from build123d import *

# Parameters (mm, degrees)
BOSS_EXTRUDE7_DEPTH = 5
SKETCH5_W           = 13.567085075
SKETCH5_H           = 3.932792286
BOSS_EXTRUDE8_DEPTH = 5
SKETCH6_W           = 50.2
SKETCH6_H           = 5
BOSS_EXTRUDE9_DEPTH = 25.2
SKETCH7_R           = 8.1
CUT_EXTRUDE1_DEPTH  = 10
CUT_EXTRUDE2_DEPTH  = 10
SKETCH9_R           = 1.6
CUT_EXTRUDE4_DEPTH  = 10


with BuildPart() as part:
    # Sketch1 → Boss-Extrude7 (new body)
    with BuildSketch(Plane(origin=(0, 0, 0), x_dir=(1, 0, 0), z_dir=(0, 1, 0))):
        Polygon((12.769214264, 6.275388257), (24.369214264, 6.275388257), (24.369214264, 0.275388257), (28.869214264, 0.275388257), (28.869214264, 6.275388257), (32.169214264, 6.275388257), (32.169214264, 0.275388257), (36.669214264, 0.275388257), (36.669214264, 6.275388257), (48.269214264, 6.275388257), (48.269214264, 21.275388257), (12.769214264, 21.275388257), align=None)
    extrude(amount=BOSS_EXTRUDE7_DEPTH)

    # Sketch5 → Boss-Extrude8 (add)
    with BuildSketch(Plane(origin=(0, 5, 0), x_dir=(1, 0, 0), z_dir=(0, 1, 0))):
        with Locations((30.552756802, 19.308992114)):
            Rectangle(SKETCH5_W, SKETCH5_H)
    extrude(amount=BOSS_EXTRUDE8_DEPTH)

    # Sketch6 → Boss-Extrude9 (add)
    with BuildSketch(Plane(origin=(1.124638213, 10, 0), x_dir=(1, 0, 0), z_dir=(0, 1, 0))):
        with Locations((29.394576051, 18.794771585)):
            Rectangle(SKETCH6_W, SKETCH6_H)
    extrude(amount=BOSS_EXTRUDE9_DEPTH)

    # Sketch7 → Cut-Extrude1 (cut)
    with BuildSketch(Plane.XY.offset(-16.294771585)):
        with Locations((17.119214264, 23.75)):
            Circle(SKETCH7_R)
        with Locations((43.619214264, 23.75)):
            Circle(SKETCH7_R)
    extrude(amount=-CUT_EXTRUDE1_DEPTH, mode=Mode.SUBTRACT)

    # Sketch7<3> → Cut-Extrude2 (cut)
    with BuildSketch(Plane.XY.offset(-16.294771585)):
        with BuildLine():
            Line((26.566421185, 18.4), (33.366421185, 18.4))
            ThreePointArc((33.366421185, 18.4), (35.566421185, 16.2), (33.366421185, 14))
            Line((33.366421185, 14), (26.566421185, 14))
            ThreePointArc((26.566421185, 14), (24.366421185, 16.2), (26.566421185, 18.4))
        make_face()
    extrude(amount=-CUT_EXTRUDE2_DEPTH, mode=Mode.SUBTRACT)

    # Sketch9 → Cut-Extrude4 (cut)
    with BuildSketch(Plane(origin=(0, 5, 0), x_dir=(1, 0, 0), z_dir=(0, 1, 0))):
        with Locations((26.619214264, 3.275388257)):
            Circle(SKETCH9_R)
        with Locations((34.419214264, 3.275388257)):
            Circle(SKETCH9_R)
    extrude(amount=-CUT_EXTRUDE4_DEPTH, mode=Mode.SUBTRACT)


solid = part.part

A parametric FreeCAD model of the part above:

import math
import FreeCAD as App
import Part
import Sketcher
from FreeCAD import Vector
Q = App.Units.Quantity

doc = App.newDocument("Part")
params = doc.addObject("Spreadsheet::Sheet", "Params")
for row, (alias, value) in enumerate([
    ("sketch1_height", "6 mm"),
    ("sketch1_height2", "15 mm"),
    ("sketch1_width", "11.6 mm"),
    ("sketch1_width2", "4.5 mm"),
    ("sketch1_width3", "3.3 mm"),
    ("pad1_length", "5 mm"),
    ("pad2_length", "5 mm"),
    ("sketch3_height", "5 mm"),
    ("sketch3_width", "50.2 mm"),
    ("pad3_length", "25.2 mm"),
    ("sketch4_diameter", "16.2 mm"),
    ("pocket1_length", "10 mm"),
    ("sketch5_radius", "2.2 mm"),
    ("sketch5_width", "6.8 mm"),
    ("pocket2_length", "10 mm"),
    ("sketch6_diameter", "3.2 mm"),
    ("pocket3_length", "10 mm"),
], start=1):
    params.set(f"A{row}", alias)
    params.set(f"B{row}", "=" + value)
    params.setAlias(f"B{row}", alias)

body = doc.addObject("PartDesign::Body", "Body")

# Sketch on XZ plane
sketch1 = body.newObject("Sketcher::SketchObject", "Sketch")
sketch1.AttachmentSupport = (doc.getObject("XZ_Plane"), [""])
sketch1.MapMode = "FlatFace"
sketch1.addGeometry([
    Part.LineSegment(Vector(12.8, -6.3, 0), Vector(24.4, -6.3, 0)),  # 0
    Part.LineSegment(Vector(24.4, -6.3, 0), Vector(24.4, -0.3, 0)),  # 1
    Part.LineSegment(Vector(24.4, -0.3, 0), Vector(28.9, -0.3, 0)),  # 2
    Part.LineSegment(Vector(28.9, -0.3, 0), Vector(28.9, -6.3, 0)),  # 3
    Part.LineSegment(Vector(28.9, -6.3, 0), Vector(32.2, -6.3, 0)),  # 4
    Part.LineSegment(Vector(32.2, -6.3, 0), Vector(32.2, -0.3, 0)),  # 5
    Part.LineSegment(Vector(32.2, -0.3, 0), Vector(36.7, -0.3, 0)),  # 6
    Part.LineSegment(Vector(36.7, -0.3, 0), Vector(36.7, -6.3, 0)),  # 7
    Part.LineSegment(Vector(36.7, -6.3, 0), Vector(48.3, -6.3, 0)),  # 8
    Part.LineSegment(Vector(48.3, -6.3, 0), Vector(48.3, -21.3, 0)),  # 9
    Part.LineSegment(Vector(48.3, -21.3, 0), Vector(12.8, -21.3, 0)),  # 10
    Part.LineSegment(Vector(12.8, -21.3, 0), Vector(12.8, -6.3, 0)),  # 11
], False)
sketch1.addConstraint([
    Sketcher.Constraint("Coincident", 0, 2, 1, 1),
    Sketcher.Constraint("Coincident", 1, 2, 2, 1),
    Sketcher.Constraint("Coincident", 2, 2, 3, 1),
    Sketcher.Constraint("Coincident", 3, 2, 4, 1),
    Sketcher.Constraint("Coincident", 4, 2, 5, 1),
    Sketcher.Constraint("Coincident", 5, 2, 6, 1),
    Sketcher.Constraint("Coincident", 6, 2, 7, 1),
    Sketcher.Constraint("Coincident", 7, 2, 8, 1),
    Sketcher.Constraint("Coincident", 8, 2, 9, 1),
    Sketcher.Constraint("Coincident", 9, 2, 10, 1),
    Sketcher.Constraint("Coincident", 10, 2, 11, 1),
    Sketcher.Constraint("Coincident", 11, 2, 0, 1),
    Sketcher.Constraint("Horizontal", 0),
    Sketcher.Constraint("Vertical", 1),
    Sketcher.Constraint("Horizontal", 2),
    Sketcher.Constraint("Vertical", 3),
    Sketcher.Constraint("Horizontal", 4),
    Sketcher.Constraint("Vertical", 5),
    Sketcher.Constraint("Horizontal", 6),
    Sketcher.Constraint("Vertical", 7),
    Sketcher.Constraint("Horizontal", 8),
    Sketcher.Constraint("Vertical", 9),
    Sketcher.Constraint("Horizontal", 10),
    Sketcher.Constraint("Vertical", 11),
    Sketcher.Constraint("Horizontal", 0, 2, 3, 2),
    Sketcher.Constraint("Horizontal", 2, 2, 5, 2),
    Sketcher.Constraint("Horizontal", 4, 2, 7, 2),
    Sketcher.Constraint("Equal", 2, 6),
    Sketcher.Constraint("Equal", 0, 8),
    Sketcher.Constraint("DistanceY", 1, 1, 1, 2, Q("6 mm")),
    Sketcher.Constraint("DistanceY", 9, 2, 9, 1, Q("15 mm")),
    Sketcher.Constraint("DistanceX", 0, 1, 0, 2, Q("11.6 mm")),
    Sketcher.Constraint("DistanceX", 2, 1, 2, 2, Q("4.5 mm")),
    Sketcher.Constraint("DistanceX", 4, 1, 4, 2, Q("3.3 mm")),
    Sketcher.Constraint("DistanceY", 0, 2, -1, 1, Q("6.275388 mm")),
    Sketcher.Constraint("DistanceX", -1, 1, 0, 2, Q("24.369214 mm")),
])
sketch1.setExpression("Constraints[29]", "Params.sketch1_height")
sketch1.setExpression("Constraints[30]", "Params.sketch1_height2")
sketch1.setExpression("Constraints[31]", "Params.sketch1_width")
sketch1.setExpression("Constraints[32]", "Params.sketch1_width2")
sketch1.setExpression("Constraints[33]", "Params.sketch1_width3")
pad1 = body.newObject("PartDesign::Pad", "Pad")
pad1.Profile = sketch1
pad1.setExpression("Length", "Params.pad1_length")
pad1.Reversed = True

# Sketch on XZ plane
sketch2 = body.newObject("Sketcher::SketchObject", "Sketch001")
sketch2.AttachmentSupport = (doc.getObject("XZ_Plane"), [""])
sketch2.MapMode = "FlatFace"
sketch2.AttachmentOffset = App.Placement(Vector(0, 0, -5), App.Rotation())
sketch2.addGeometry([
    Part.LineSegment(Vector(23.8, -21.3, 0), Vector(23.8, -17.3, 0)),
    Part.LineSegment(Vector(23.8, -17.3, 0), Vector(37.3, -17.3, 0)),
    Part.LineSegment(Vector(37.3, -17.3, 0), Vector(37.3, -21.3, 0)),
    Part.LineSegment(Vector(37.3, -21.3, 0), Vector(23.8, -21.3, 0)),
], False)
sketch2.addConstraint([
    Sketcher.Constraint("Coincident", 0, 2, 1, 1),
    Sketcher.Constraint("Coincident", 1, 2, 2, 1),
    Sketcher.Constraint("Coincident", 2, 2, 3, 1),
    Sketcher.Constraint("Coincident", 3, 2, 0, 1),
    Sketcher.Constraint("Vertical", 0),
    Sketcher.Constraint("Horizontal", 1),
    Sketcher.Constraint("Vertical", 2),
    Sketcher.Constraint("Horizontal", 3),
    Sketcher.Constraint("DistanceX", -1, 1, 1, 2, Q("37.336299 mm")),
    Sketcher.Constraint("DistanceX", 1, 1, 1, 2, Q("13.567085 mm")),
    Sketcher.Constraint("DistanceY", 0, 1, 0, 2, Q("3.932792 mm")),
    Sketcher.Constraint("DistanceY", 2, 2, -1, 1, Q("21.275388 mm")),
])
pad2 = body.newObject("PartDesign::Pad", "Pad001")
pad2.Profile = sketch2
pad2.setExpression("Length", "Params.pad2_length")
pad2.Reversed = True

# Sketch on XZ plane
sketch3 = body.newObject("Sketcher::SketchObject", "Sketch002")
sketch3.AttachmentSupport = (doc.getObject("XZ_Plane"), [""])
sketch3.MapMode = "FlatFace"
sketch3.AttachmentOffset = App.Placement(Vector(0, 0, -10), App.Rotation())
sketch3.addGeometry([
    Part.LineSegment(Vector(5, -21, 0), Vector(5, -16, 0)),
    Part.LineSegment(Vector(5, -16, 0), Vector(56, -16, 0)),
    Part.LineSegment(Vector(56, -16, 0), Vector(56, -21, 0)),
    Part.LineSegment(Vector(56, -21, 0), Vector(5, -21, 0)),
], False)
sketch3.addConstraint([
    Sketcher.Constraint("Coincident", 0, 2, 1, 1),
    Sketcher.Constraint("Coincident", 1, 2, 2, 1),
    Sketcher.Constraint("Coincident", 2, 2, 3, 1),
    Sketcher.Constraint("Coincident", 3, 2, 0, 1),
    Sketcher.Constraint("Vertical", 0),
    Sketcher.Constraint("Horizontal", 1),
    Sketcher.Constraint("Vertical", 2),
    Sketcher.Constraint("Horizontal", 3),
    Sketcher.Constraint("DistanceY", 0, 1, 0, 2, Q("5 mm")),
    Sketcher.Constraint("DistanceX", 1, 1, 1, 2, Q("50.2 mm")),
    Sketcher.Constraint("DistanceY", 0, 2, -1, 1, Q("16.294772 mm")),
    Sketcher.Constraint("DistanceX", -1, 1, 0, 2, Q("5.419214 mm")),
])
sketch3.setExpression("Constraints[8]", "Params.sketch3_height")
sketch3.setExpression("Constraints[9]", "Params.sketch3_width")
pad3 = body.newObject("PartDesign::Pad", "Pad002")
pad3.Profile = sketch3
pad3.setExpression("Length", "Params.pad3_length")
pad3.Reversed = True

# Sketch on XY plane
sketch4 = body.newObject("Sketcher::SketchObject", "Sketch003")
sketch4.AttachmentSupport = (doc.getObject("XY_Plane"), [""])
sketch4.MapMode = "FlatFace"
sketch4.AttachmentOffset = App.Placement(Vector(0, 0, -16.294772), App.Rotation())
sketch4.addGeometry([
    Part.Circle(Vector(17, 24, 0), Vector(0, 0, 1), 8),
    Part.Circle(Vector(44, 24, 0), Vector(0, 0, 1), 8),
], False)
sketch4.addConstraint([
    Sketcher.Constraint("Equal", 0, 1),
    Sketcher.Constraint("Horizontal", 0, 3, 1, 3),
    Sketcher.Constraint("Diameter", 0, Q("16.2 mm")),
    Sketcher.Constraint("DistanceX", 0, 3, 1, 3, Q("26.5 mm")),
    Sketcher.Constraint("DistanceY", -1, 1, 0, 3, Q("23.75 mm")),
    Sketcher.Constraint("DistanceX", -1, 1, 0, 3, Q("17.119214 mm")),
])
sketch4.setExpression("Constraints[2]", "Params.sketch4_diameter")
pocket1 = body.newObject("PartDesign::Pocket", "Pocket")
pocket1.Profile = sketch4
pocket1.setExpression("Length", "Params.pocket1_length")

# Sketch on XY plane
sketch5 = body.newObject("Sketcher::SketchObject", "Sketch004")
sketch5.AttachmentSupport = (doc.getObject("XY_Plane"), [""])
sketch5.MapMode = "FlatFace"
sketch5.AttachmentOffset = App.Placement(Vector(0, 0, -16.294772), App.Rotation())
sketch5.addGeometry([
    Part.LineSegment(Vector(33.4, 18.4, 0), Vector(26.6, 18.4, 0)),
    Part.ArcOfCircle(Part.Circle(Vector(26.6, 16.2, 0), Vector(0, 0, 1), 2.2), math.radians(90), math.radians(270)),
    Part.LineSegment(Vector(26.6, 14, 0), Vector(33.4, 14, 0)),
    Part.ArcOfCircle(Part.Circle(Vector(33.4, 16.2, 0), Vector(0, 0, 1), 2.2), math.radians(-90), math.radians(90)),
], False)
sketch5.addConstraint([
    Sketcher.Constraint("Tangent", 0, 2, 1, 1),
    Sketcher.Constraint("Tangent", 1, 2, 2, 1),
    Sketcher.Constraint("Tangent", 2, 2, 3, 1),
    Sketcher.Constraint("Tangent", 3, 2, 0, 1),
    Sketcher.Constraint("Horizontal", 0),
    Sketcher.Constraint("Horizontal", 2),
    Sketcher.Constraint("Radius", 1, Q("2.2 mm")),
    Sketcher.Constraint("DistanceX", 0, 2, 0, 1, Q("6.8 mm")),
    Sketcher.Constraint("DistanceY", -1, 1, 1, 2, Q("14 mm")),
    Sketcher.Constraint("DistanceX", -1, 1, 1, 3, Q("26.566421 mm")),
])
sketch5.setExpression("Constraints[6]", "Params.sketch5_radius")
sketch5.setExpression("Constraints[7]", "Params.sketch5_width")
pocket2 = body.newObject("PartDesign::Pocket", "Pocket001")
pocket2.Profile = sketch5
pocket2.setExpression("Length", "Params.pocket2_length")

# Sketch on XZ plane
sketch6 = body.newObject("Sketcher::SketchObject", "Sketch005")
sketch6.AttachmentSupport = (doc.getObject("XZ_Plane"), [""])
sketch6.MapMode = "FlatFace"
sketch6.AttachmentOffset = App.Placement(Vector(0, 0, -5), App.Rotation())
sketch6.addGeometry([
    Part.Circle(Vector(26.6, -3.3, 0), Vector(0, 0, 1), 1.6),
    Part.Circle(Vector(34.4, -3.3, 0), Vector(0, 0, 1), 1.6),
], False)
sketch6.addConstraint([
    Sketcher.Constraint("Equal", 0, 1),
    Sketcher.Constraint("Horizontal", 0, 3, 1, 3),
    Sketcher.Constraint("Diameter", 0, Q("3.2 mm")),
    Sketcher.Constraint("DistanceX", 0, 3, 1, 3, Q("7.8 mm")),
    Sketcher.Constraint("DistanceY", 0, 3, -1, 1, Q("3.275388 mm")),
    Sketcher.Constraint("DistanceX", -1, 1, 0, 3, Q("26.619214 mm")),
])
sketch6.setExpression("Constraints[2]", "Params.sketch6_diameter")
pocket3 = body.newObject("PartDesign::Pocket", "Pocket002")
pocket3.Profile = sketch6
pocket3.setExpression("Length", "Params.pocket3_length")
pocket3.Reversed = True

doc.recompute()
